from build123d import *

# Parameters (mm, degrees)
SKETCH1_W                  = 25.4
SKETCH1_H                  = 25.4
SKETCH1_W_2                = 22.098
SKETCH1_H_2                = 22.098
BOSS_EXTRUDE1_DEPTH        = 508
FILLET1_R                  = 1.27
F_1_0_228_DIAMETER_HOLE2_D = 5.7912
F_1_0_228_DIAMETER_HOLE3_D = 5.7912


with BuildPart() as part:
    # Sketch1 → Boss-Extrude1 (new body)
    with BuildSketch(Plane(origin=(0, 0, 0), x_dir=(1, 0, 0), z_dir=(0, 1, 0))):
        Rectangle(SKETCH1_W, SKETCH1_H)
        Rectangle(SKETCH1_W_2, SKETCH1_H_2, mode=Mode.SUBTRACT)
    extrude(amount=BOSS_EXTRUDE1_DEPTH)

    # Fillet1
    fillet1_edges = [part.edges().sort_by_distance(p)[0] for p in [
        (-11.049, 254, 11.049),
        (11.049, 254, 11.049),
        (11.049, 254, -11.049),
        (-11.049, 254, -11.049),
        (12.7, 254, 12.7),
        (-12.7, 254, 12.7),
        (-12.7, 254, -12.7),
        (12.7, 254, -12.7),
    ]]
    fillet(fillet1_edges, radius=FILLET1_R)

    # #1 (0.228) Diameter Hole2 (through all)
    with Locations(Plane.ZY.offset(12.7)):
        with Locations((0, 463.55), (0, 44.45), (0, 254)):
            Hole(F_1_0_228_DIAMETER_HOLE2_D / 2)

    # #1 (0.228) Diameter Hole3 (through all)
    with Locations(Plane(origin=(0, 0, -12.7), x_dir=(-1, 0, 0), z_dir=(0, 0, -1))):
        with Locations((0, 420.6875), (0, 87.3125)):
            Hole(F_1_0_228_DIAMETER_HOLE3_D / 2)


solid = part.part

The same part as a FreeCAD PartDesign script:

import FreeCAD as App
import Part
import Sketcher
from FreeCAD import Vector
Q = App.Units.Quantity


def edges_at(feature, points):
    """Names of the edges that pass closest to the given points."""
    edges = feature.Shape.Edges
    near = lambda p: min(range(len(edges)), key=lambda i: edges[i].distToShape(Part.Vertex(*p))[0])
    return sorted({f"Edge{near(p) + 1}" for p in points})

doc = App.newDocument("Part")
body = doc.addObject("PartDesign::Body", "Body")

sketch1 = body.newObject("Sketcher::SketchObject", "Sketch")
sketch1.AttachmentSupport = (doc.getObject("XZ_Plane"), [""])
sketch1.MapMode = "FlatFace"
sketch1.addGeometry(Part.LineSegment(Vector(-13, -13, 0), Vector(-13, 13, 0)), False)
sketch1.addGeometry(Part.LineSegment(Vector(-13, 13, 0), Vector(13, 13, 0)), False)
sketch1.addGeometry(Part.LineSegment(Vector(13, 13, 0), Vector(13, -13, 0)), False)
sketch1.addGeometry(Part.LineSegment(Vector(13, -13, 0), Vector(-13, -13, 0)), False)
sketch1.addGeometry(Part.LineSegment(Vector(11, 11, 0), Vector(-11, 11, 0)), False)
sketch1.addGeometry(Part.LineSegment(Vector(-11, 11, 0), Vector(-11, -11, 0)), False)
sketch1.addGeometry(Part.LineSegment(Vector(-11, -11, 0), Vector(11, -11, 0)), False)
sketch1.addGeometry(Part.LineSegment(Vector(11, -11, 0), Vector(11, 11, 0)), False)
sketch1.addConstraint(Sketcher.Constraint("Coincident", 0, 2, 1, 1))
sketch1.addConstraint(Sketcher.Constraint("Coincident", 1, 2, 2, 1))
sketch1.addConstraint(Sketcher.Constraint("Coincident", 2, 2, 3, 1))
sketch1.addConstraint(Sketcher.Constraint("Coincident", 3, 2, 0, 1))
sketch1.addConstraint(Sketcher.Constraint("Coincident", 4, 2, 5, 1))
sketch1.addConstraint(Sketcher.Constraint("Coincident", 5, 2, 6, 1))
sketch1.addConstraint(Sketcher.Constraint("Coincident", 6, 2, 7, 1))
sketch1.addConstraint(Sketcher.Constraint("Coincident", 7, 2, 4, 1))
sketch1.addConstraint(Sketcher.Constraint("Vertical", 0))
sketch1.addConstraint(Sketcher.Constraint("Horizontal", 1))
sketch1.addConstraint(Sketcher.Constraint("Vertical", 2))
sketch1.addConstraint(Sketcher.Constraint("Horizontal", 3))
sketch1.addConstraint(Sketcher.Constraint("Horizontal", 4))
sketch1.addConstraint(Sketcher.Constraint("Vertical", 5))
sketch1.addConstraint(Sketcher.Constraint("Horizontal", 6))
sketch1.addConstraint(Sketcher.Constraint("Vertical", 7))
sketch1.addConstraint(Sketcher.Constraint("Symmetric", 0, 2, 2, 2, -1, 1))
sketch1.addConstraint(Sketcher.Constraint("Symmetric", 4, 2, 6, 2, -1, 1))
sketch1.addConstraint(Sketcher.Constraint("Equal", 3, 0))
sketch1.addConstraint(Sketcher.Constraint("Equal", 6, 5))
sketch1.addConstraint(Sketcher.Constraint("DistanceX", 1, 1, 1, 2, Q("1 in")))
sketch1.addConstraint(Sketcher.Constraint("DistanceX", 4, 2, 4, 1, Q("0.87 in")))
pad1 = body.newObject("PartDesign::Pad", "Pad")
pad1.Profile = sketch1
pad1.Length = Q("20 in")
pad1.Reversed = True
doc.recompute()

fillet = body.newObject("PartDesign::Fillet", "Fillet")
fillet.Base = (pad1, edges_at(pad1, [
    (-11.049, 254, 11.049),
    (11.049, 254, 11.049),
    (11.049, 254, -11.049),
    (-11.049, 254, -11.049),
    (12.7, 254, 12.7),
    (-12.7, 254, 12.7),
    (-12.7, 254, -12.7),
    (12.7, 254, -12.7),
]))
fillet.Radius = Q("0.05 in")

sketch2 = body.newObject("Sketcher::SketchObject", "Sketch001")
sketch2.AttachmentSupport = (doc.getObject("YZ_Plane"), [""])
sketch2.MapMode = "FlatFace"
sketch2.AttachmentOffset = App.Placement(Vector(0, 0, -0.5 * 25.4), App.Rotation())
sketch2.addGeometry(Part.Circle(Vector(463.6, 0, 0), Vector(0, 0, 1), 2.9), False)
sketch2.addGeometry(Part.Circle(Vector(44.5, 0, 0), Vector(0, 0, 1), 2.9), False)
sketch2.addGeometry(Part.Circle(Vector(254, 0, 0), Vector(0, 0, 1), 2.9), False)
sketch2.addConstraint(Sketcher.Constraint("Equal", 0, 1))
sketch2.addConstraint(Sketcher.Constraint("Equal", 1, 2))
sketch2.addConstraint(Sketcher.Constraint("PointOnObject", 0, 3, -1))
sketch2.addConstraint(Sketcher.Constraint("PointOnObject", 1, 3, -1))
sketch2.addConstraint(Sketcher.Constraint("PointOnObject", 2, 3, -1))
sketch2.addConstraint(Sketcher.Constraint("Diameter", 0, Q("0.228 in")))
sketch2.addConstraint(Sketcher.Constraint("DistanceX", -1, 1, 2, 3, Q("10 in")))
sketch2.addConstraint(Sketcher.Constraint("DistanceX", 1, 3, 0, 3, Q("16.5 in")))
sketch2.addConstraint(Sketcher.Constraint("DistanceX", -1, 1, 0, 3, Q("18.25 in")))
doc.recompute()
hole = body.newObject("PartDesign::Hole", "Hole")
hole.Profile = sketch2
hole.ThreadType = "None"
hole.Diameter = Q("0.228 in")
hole.DepthType = "ThroughAll"
hole.Reversed = True

sketch3 = body.newObject("Sketcher::SketchObject", "Sketch002")
sketch3.AttachmentSupport = (doc.getObject("XY_Plane"), [""])
sketch3.MapMode = "FlatFace"
sketch3.AttachmentOffset = App.Placement(Vector(0, 0, -0.5 * 25.4), App.Rotation())
sketch3.addGeometry(Part.Circle(Vector(0, 420.7, 0), Vector(0, 0, 1), 2.9), False)
sketch3.addGeometry(Part.Circle(Vector(0, 87.3, 0), Vector(0, 0, 1), 2.9), False)
sketch3.addConstraint(Sketcher.Constraint("Equal", 0, 1))
sketch3.addConstraint(Sketcher.Constraint("PointOnObject", 0, 3, -2))
sketch3.addConstraint(Sketcher.Constraint("PointOnObject", 1, 3, -2))
sketch3.addConstraint(Sketcher.Constraint("Diameter", 0, Q("0.228 in")))
sketch3.addConstraint(Sketcher.Constraint("DistanceY", -1, 1, 0, 3, Q("16.5625 in")))
sketch3.addConstraint(Sketcher.Constraint("DistanceY", -1, 1, 1, 3, Q("3.4375 in")))
doc.recompute()
hole2 = body.newObject("PartDesign::Hole", "Hole001")
hole2.Profile = sketch3
hole2.ThreadType = "None"
hole2.Diameter = Q("0.228 in")
hole2.DepthType = "ThroughAll"
hole2.Reversed = True

doc.recompute()
